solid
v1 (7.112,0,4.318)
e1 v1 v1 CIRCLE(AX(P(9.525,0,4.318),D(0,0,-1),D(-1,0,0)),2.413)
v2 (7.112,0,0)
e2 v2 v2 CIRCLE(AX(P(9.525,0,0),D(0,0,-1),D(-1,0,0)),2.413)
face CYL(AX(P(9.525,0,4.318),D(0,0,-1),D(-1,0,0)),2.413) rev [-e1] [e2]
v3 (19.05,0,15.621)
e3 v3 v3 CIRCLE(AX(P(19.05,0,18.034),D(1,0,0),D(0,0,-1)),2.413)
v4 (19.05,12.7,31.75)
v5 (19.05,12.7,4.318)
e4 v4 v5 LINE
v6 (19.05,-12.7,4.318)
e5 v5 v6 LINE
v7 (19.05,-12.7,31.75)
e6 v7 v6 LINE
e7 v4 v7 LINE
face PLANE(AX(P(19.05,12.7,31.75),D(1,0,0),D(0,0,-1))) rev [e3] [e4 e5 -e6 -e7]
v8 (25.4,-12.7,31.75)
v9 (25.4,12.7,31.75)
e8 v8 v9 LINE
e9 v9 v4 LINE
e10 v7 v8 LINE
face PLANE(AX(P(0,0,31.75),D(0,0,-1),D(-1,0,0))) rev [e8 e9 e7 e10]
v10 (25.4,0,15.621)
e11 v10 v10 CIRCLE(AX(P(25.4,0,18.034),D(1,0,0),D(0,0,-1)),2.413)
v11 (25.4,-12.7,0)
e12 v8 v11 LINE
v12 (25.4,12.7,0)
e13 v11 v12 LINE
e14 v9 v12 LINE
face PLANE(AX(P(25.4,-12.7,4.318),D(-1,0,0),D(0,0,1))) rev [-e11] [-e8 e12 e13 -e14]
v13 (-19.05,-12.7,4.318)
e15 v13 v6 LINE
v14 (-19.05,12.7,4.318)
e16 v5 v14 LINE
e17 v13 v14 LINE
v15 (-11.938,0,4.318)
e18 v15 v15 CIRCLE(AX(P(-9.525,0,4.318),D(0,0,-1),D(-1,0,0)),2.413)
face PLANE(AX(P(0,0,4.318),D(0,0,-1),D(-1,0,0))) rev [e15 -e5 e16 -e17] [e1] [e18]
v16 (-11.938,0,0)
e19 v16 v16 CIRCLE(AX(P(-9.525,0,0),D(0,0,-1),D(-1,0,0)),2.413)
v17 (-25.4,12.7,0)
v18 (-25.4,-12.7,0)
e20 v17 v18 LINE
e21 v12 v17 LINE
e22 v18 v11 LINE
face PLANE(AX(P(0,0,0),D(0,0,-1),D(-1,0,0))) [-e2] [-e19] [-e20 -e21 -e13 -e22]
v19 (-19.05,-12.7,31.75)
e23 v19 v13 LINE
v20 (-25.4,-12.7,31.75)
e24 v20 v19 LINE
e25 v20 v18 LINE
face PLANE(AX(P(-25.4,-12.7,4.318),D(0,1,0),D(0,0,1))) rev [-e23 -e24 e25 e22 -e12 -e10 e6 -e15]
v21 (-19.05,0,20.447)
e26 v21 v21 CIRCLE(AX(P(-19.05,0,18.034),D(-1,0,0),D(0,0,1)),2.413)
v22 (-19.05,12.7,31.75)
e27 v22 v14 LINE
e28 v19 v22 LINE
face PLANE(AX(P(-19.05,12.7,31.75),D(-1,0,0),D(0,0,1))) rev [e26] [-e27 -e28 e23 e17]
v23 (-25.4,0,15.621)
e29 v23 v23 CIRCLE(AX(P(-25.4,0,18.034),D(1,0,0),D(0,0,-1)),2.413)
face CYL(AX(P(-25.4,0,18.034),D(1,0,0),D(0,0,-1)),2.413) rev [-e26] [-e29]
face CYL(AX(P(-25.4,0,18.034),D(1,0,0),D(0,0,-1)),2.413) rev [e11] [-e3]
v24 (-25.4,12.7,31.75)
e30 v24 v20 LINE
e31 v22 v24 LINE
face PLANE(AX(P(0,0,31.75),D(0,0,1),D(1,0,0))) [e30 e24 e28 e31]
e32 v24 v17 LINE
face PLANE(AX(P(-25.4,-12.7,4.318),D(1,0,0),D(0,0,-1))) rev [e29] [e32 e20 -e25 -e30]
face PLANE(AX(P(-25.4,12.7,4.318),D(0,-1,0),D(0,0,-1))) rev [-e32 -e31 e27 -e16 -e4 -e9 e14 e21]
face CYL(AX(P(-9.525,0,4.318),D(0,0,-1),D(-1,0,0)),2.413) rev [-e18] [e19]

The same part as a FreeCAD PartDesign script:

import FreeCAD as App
import Part
import Sketcher
from FreeCAD import Vector
Q = App.Units.Quantity


def add_polygon(sketch, points):
    """Adds a closed chain of lines whose ends are joined by coincident constraints."""
    first, n = sketch.GeometryCount, len(points)
    for a, b in zip(points, points[1:] + points[:1]):
        sketch.addGeometry(Part.LineSegment(App.Vector(*a, 0), App.Vector(*b, 0)), False)
    for i in range(n):
        sketch.addConstraint(Sketcher.Constraint("Coincident", first + i, 2, first + (i + 1) % n, 1))

doc = App.newDocument("Part")
body = doc.addObject("PartDesign::Body", "Body")

sketch1 = body.newObject("Sketcher::SketchObject", "Sketch")
sketch1.AttachmentSupport = (doc.getObject("XY_Plane"), [""])
sketch1.MapMode = "FlatFace"
add_polygon(sketch1, [(-25.4, 12.7), (-25.4, -12.7), (25.4, -12.7), (25.4, 12.7)])
sketch1.addConstraint([
    Sketcher.Constraint("Vertical", 0),
    Sketcher.Constraint("Horizontal", 1),
    Sketcher.Constraint("Vertical", 2),
    Sketcher.Constraint("Horizontal", 3),
    Sketcher.Constraint("Symmetric", 0, 2, 2, 2, -1, 1),
    Sketcher.Constraint("DistanceX", 1, 1, 1, 2, Q("2 in")),
    Sketcher.Constraint("DistanceY", 0, 2, 0, 1, Q("1 in")),
])
pad1 = body.newObject("PartDesign::Pad", "Pad")
pad1.Profile = sketch1
pad1.Length = Q("0.17 in")

sketch2 = body.newObject("Sketcher::SketchObject", "Sketch001")
sketch2.AttachmentSupport = (doc.getObject("XY_Plane"), [""])
sketch2.MapMode = "FlatFace"
sketch2.AttachmentOffset = App.Placement(Vector(0, 0, 0.17 * 25.4), App.Rotation())
add_polygon(sketch2, [(-25.4, 12.7), (-25.4, -12.7), (-19.05, -12.7), (-19.05, 12.7)])
add_polygon(sketch2, [(19.05, 12.7), (19.05, -12.7), (25.4, -12.7), (25.4, 12.7)])
sketch2.addConstraint([
    Sketcher.Constraint("Vertical", 0),
    Sketcher.Constraint("Horizontal", 1),
    Sketcher.Constraint("Vertical", 2),
    Sketcher.Constraint("Horizontal", 3),
    Sketcher.Constraint("Vertical", 4),
    Sketcher.Constraint("Horizontal", 5),
    Sketcher.Constraint("Vertical", 6),
    Sketcher.Constraint("Horizontal", 7),
    Sketcher.Constraint("Symmetric", 2, 2, 4, 2, -1, 1),
    Sketcher.Constraint("Symmetric", 0, 2, 6, 2, -1, 1),
    Sketcher.Constraint("Horizontal", 1, 2, 4, 2),
    Sketcher.Constraint("DistanceY", 0, 2, 0, 1, Q("1 in")),
    Sketcher.Constraint("DistanceX", 0, 2, -1, 1, Q("1 in")),
    Sketcher.Constraint("DistanceX", 1, 1, 1, 2, Q("0.25 in")),
])
pad2 = body.newObject("PartDesign::Pad", "Pad001")
pad2.Profile = sketch2
pad2.Length = Q("1.08 in")

sketch3 = body.newObject("Sketcher::SketchObject", "Sketch002")
sketch3.AttachmentSupport = (doc.getObject("XY_Plane"), [""])
sketch3.MapMode = "FlatFace"
sketch3.addGeometry([
    Part.Circle(Vector(9.525, 0, 0), Vector(0, 0, 1), 2.413),
    Part.Circle(Vector(-9.525, 0, 0), Vector(0, 0, 1), 2.413),
], False)
sketch3.addConstraint([
    Sketcher.Constraint("Equal", 0, 1),
    Sketcher.Constraint("Symmetric", 0, 3, 1, 3, -1, 1),
    Sketcher.Constraint("PointOnObject", 0, 3, -1),
    Sketcher.Constraint("Diameter", 0, Q("0.19 in")),
    Sketcher.Constraint("DistanceX", 1, 3, 0, 3, Q("0.75 in")),
])
pocket1 = body.newObject("PartDesign::Pocket", "Pocket")
pocket1.Profile = sketch3
pocket1.Length = Q("0.17 in")
pocket1.Reversed = True

sketch4 = body.newObject("Sketcher::SketchObject", "Sketch003")
sketch4.AttachmentSupport = (doc.getObject("YZ_Plane"), [""])
sketch4.MapMode = "FlatFace"
sketch4.AttachmentOffset = App.Placement(Vector(0, 0, -0.75 * 25.4), App.Rotation())
sketch4.addGeometry(Part.Circle(Vector(0, 18.034, 0), Vector(0, 0, 1), 2.413), False)
sketch4.addConstraint([
    Sketcher.Constraint("PointOnObject", 0, 3, -2),
    Sketcher.Constraint("Diameter", 0, Q("0.19 in")),
    Sketcher.Constraint("DistanceY", -1, 1, 0, 3, Q("0.71 in")),
])
pocket2 = body.newObject("PartDesign::Pocket", "Pocket001")
pocket2.Profile = sketch4
pocket2.Type = "ThroughAll"
pocket2.Midplane = True

doc.recompute()
